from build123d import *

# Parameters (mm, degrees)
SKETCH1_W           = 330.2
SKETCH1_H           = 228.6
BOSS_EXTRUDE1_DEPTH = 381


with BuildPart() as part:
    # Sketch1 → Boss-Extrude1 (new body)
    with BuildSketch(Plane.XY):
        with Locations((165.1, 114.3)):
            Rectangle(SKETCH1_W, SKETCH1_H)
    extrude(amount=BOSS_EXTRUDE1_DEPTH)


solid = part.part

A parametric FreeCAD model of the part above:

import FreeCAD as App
import Part
import Sketcher
Q = App.Units.Quantity


def add_polygon(sketch, points):
    """Adds a closed chain of lines whose ends are joined by coincident constraints."""
    first, n = sketch.GeometryCount, len(points)
    for a, b in zip(points, points[1:] + points[:1]):
        sketch.addGeometry(Part.LineSegment(App.Vector(*a, 0), App.Vector(*b, 0)), False)
    for i in range(n):
        sketch.addConstraint(Sketcher.Constraint("Coincident", first + i, 2, first + (i + 1) % n, 1))

doc = App.newDocument("Part")
params = doc.addObject("Spreadsheet::Sheet", "Params")
for row, (alias, value) in enumerate([
    ("sketch1_width", "13 in"),
    ("sketch1_height", "9 in"),
    ("pad1_length", "15 in"),
], start=1):
    params.set(f"A{row}", alias)
    params.set(f"B{row}", "=" + value)
    params.setAlias(f"B{row}", alias)

body = doc.addObject("PartDesign::Body", "Body")

# Sketch on XY plane
sketch1 = body.newObject("Sketcher::SketchObject", "Sketch")
sketch1.AttachmentSupport = (doc.getObject("XY_Plane"), [""])
sketch1.MapMode = "FlatFace"
add_polygon(sketch1, [(0, 229), (0, 0), (330, 0), (330, 229)])  # lines 0-3
sketch1.addConstraint(Sketcher.Constraint("Vertical", 0))
sketch1.addConstraint(Sketcher.Constraint("Horizontal", 1))
sketch1.addConstraint(Sketcher.Constraint("Vertical", 2))
sketch1.addConstraint(Sketcher.Constraint("Horizontal", 3))
sketch1.addConstraint(Sketcher.Constraint("Coincident", 0, 2, -1, 1))
sketch1.addConstraint(Sketcher.Constraint("DistanceX", 1, 1, 1, 2, Q("13 in")))
sketch1.addConstraint(Sketcher.Constraint("DistanceY", 0, 2, 0, 1, Q("9 in")))
sketch1.setExpression("Constraints[9]", "Params.sketch1_width")
sketch1.setExpression("Constraints[10]", "Params.sketch1_height")
pad1 = body.newObject("PartDesign::Pad", "Pad")
pad1.Profile = sketch1
pad1.setExpression("Length", "Params.pad1_length")

doc.recompute()
